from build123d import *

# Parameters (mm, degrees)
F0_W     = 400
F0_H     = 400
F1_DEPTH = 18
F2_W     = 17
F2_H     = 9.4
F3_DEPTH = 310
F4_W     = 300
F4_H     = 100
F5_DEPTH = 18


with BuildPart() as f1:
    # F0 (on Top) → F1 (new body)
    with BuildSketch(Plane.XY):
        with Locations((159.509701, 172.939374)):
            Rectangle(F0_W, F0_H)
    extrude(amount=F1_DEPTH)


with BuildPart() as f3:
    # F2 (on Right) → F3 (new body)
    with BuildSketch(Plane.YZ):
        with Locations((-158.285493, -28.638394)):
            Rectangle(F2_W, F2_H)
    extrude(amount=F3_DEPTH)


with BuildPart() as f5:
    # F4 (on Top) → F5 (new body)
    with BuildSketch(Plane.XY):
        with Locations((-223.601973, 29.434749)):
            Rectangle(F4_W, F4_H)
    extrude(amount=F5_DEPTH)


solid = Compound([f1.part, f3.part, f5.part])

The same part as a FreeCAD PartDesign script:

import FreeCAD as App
import Part
import Sketcher


def add_polygon(sketch, points):
    """Adds a closed chain of lines whose ends are joined by coincident constraints."""
    first, n = sketch.GeometryCount, len(points)
    for a, b in zip(points, points[1:] + points[:1]):
        sketch.addGeometry(Part.LineSegment(App.Vector(*a, 0), App.Vector(*b, 0)), False)
    for i in range(n):
        sketch.addConstraint(Sketcher.Constraint("Coincident", first + i, 2, first + (i + 1) % n, 1))

doc = App.newDocument("Part")
body = doc.addObject("PartDesign::Body", "Body")

# Sketch on XY plane
sketch1 = body.newObject("Sketcher::SketchObject", "Sketch")
sketch1.AttachmentSupport = (doc.getObject("XY_Plane"), [""])
sketch1.MapMode = "FlatFace"
add_polygon(sketch1, [(-40.490299, 372.939374), (-40.490299, -27.060626), (359.509701, -27.060626), (359.509701, 372.939374)])  # lines 0-3
sketch1.addConstraint([
    Sketcher.Constraint("Vertical", 0),
    Sketcher.Constraint("Horizontal", 1),
    Sketcher.Constraint("Vertical", 2),
    Sketcher.Constraint("Horizontal", 3),
    Sketcher.Constraint("Equal", 3, 0),
    Sketcher.Constraint("DistanceX", 1, 1, 1, 2, 400.0),
    Sketcher.Constraint("DistanceX", 0, 2, -1, 1, 40.490299),
    Sketcher.Constraint("DistanceY", 0, 2, -1, 1, 27.060626),
])
pad1 = body.newObject("PartDesign::Pad", "Pad")
pad1.Profile = sketch1
pad1.Length = 18
body2 = doc.addObject("PartDesign::Body", "Body001")

# Sketch on YZ plane
sketch2 = body2.newObject("Sketcher::SketchObject", "Sketch001")
sketch2.AttachmentSupport = (doc.getObject("YZ_Plane001"), [""])
sketch2.MapMode = "FlatFace"
add_polygon(sketch2, [(-166.785493, -23.938394), (-166.785493, -33.338394), (-149.785493, -33.338394), (-149.785493, -23.938394)])  # lines 0-3
sketch2.addConstraint([
    Sketcher.Constraint("Vertical", 0),
    Sketcher.Constraint("Horizontal", 1),
    Sketcher.Constraint("Vertical", 2),
    Sketcher.Constraint("Horizontal", 3),
    Sketcher.Constraint("DistanceX", 1, 1, 1, 2, 17.0),
    Sketcher.Constraint("DistanceY", 0, 2, 0, 1, 9.4),
    Sketcher.Constraint("DistanceX", 0, 2, -1, 1, 166.785493),
    Sketcher.Constraint("DistanceY", 0, 2, -1, 1, 33.338394),
])
pad2 = body2.newObject("PartDesign::Pad", "Pad001")
pad2.Profile = sketch2
pad2.Length = 310
body3 = doc.addObject("PartDesign::Body", "Body002")

# Sketch on XY plane
sketch3 = body3.newObject("Sketcher::SketchObject", "Sketch002")
sketch3.AttachmentSupport = (doc.getObject("XY_Plane002"), [""])
sketch3.MapMode = "FlatFace"
add_polygon(sketch3, [(-373.601973, 79.434749), (-373.601973, -20.565251), (-73.601973, -20.565251), (-73.601973, 79.434749)])  # lines 0-3
sketch3.addConstraint([
    Sketcher.Constraint("Vertical", 0),
    Sketcher.Constraint("Horizontal", 1),
    Sketcher.Constraint("Vertical", 2),
    Sketcher.Constraint("Horizontal", 3),
    Sketcher.Constraint("DistanceX", 1, 1, 1, 2, 300.0),
    Sketcher.Constraint("DistanceY", 0, 2, 0, 1, 100.0),
    Sketcher.Constraint("DistanceY", 0, 2, -1, 1, 20.565251),
    Sketcher.Constraint("DistanceX", 0, 2, -1, 1, 373.601973),
])
pad3 = body3.newObject("PartDesign::Pad", "Pad002")
pad3.Profile = sketch3
pad3.Length = 18

doc.recompute()
